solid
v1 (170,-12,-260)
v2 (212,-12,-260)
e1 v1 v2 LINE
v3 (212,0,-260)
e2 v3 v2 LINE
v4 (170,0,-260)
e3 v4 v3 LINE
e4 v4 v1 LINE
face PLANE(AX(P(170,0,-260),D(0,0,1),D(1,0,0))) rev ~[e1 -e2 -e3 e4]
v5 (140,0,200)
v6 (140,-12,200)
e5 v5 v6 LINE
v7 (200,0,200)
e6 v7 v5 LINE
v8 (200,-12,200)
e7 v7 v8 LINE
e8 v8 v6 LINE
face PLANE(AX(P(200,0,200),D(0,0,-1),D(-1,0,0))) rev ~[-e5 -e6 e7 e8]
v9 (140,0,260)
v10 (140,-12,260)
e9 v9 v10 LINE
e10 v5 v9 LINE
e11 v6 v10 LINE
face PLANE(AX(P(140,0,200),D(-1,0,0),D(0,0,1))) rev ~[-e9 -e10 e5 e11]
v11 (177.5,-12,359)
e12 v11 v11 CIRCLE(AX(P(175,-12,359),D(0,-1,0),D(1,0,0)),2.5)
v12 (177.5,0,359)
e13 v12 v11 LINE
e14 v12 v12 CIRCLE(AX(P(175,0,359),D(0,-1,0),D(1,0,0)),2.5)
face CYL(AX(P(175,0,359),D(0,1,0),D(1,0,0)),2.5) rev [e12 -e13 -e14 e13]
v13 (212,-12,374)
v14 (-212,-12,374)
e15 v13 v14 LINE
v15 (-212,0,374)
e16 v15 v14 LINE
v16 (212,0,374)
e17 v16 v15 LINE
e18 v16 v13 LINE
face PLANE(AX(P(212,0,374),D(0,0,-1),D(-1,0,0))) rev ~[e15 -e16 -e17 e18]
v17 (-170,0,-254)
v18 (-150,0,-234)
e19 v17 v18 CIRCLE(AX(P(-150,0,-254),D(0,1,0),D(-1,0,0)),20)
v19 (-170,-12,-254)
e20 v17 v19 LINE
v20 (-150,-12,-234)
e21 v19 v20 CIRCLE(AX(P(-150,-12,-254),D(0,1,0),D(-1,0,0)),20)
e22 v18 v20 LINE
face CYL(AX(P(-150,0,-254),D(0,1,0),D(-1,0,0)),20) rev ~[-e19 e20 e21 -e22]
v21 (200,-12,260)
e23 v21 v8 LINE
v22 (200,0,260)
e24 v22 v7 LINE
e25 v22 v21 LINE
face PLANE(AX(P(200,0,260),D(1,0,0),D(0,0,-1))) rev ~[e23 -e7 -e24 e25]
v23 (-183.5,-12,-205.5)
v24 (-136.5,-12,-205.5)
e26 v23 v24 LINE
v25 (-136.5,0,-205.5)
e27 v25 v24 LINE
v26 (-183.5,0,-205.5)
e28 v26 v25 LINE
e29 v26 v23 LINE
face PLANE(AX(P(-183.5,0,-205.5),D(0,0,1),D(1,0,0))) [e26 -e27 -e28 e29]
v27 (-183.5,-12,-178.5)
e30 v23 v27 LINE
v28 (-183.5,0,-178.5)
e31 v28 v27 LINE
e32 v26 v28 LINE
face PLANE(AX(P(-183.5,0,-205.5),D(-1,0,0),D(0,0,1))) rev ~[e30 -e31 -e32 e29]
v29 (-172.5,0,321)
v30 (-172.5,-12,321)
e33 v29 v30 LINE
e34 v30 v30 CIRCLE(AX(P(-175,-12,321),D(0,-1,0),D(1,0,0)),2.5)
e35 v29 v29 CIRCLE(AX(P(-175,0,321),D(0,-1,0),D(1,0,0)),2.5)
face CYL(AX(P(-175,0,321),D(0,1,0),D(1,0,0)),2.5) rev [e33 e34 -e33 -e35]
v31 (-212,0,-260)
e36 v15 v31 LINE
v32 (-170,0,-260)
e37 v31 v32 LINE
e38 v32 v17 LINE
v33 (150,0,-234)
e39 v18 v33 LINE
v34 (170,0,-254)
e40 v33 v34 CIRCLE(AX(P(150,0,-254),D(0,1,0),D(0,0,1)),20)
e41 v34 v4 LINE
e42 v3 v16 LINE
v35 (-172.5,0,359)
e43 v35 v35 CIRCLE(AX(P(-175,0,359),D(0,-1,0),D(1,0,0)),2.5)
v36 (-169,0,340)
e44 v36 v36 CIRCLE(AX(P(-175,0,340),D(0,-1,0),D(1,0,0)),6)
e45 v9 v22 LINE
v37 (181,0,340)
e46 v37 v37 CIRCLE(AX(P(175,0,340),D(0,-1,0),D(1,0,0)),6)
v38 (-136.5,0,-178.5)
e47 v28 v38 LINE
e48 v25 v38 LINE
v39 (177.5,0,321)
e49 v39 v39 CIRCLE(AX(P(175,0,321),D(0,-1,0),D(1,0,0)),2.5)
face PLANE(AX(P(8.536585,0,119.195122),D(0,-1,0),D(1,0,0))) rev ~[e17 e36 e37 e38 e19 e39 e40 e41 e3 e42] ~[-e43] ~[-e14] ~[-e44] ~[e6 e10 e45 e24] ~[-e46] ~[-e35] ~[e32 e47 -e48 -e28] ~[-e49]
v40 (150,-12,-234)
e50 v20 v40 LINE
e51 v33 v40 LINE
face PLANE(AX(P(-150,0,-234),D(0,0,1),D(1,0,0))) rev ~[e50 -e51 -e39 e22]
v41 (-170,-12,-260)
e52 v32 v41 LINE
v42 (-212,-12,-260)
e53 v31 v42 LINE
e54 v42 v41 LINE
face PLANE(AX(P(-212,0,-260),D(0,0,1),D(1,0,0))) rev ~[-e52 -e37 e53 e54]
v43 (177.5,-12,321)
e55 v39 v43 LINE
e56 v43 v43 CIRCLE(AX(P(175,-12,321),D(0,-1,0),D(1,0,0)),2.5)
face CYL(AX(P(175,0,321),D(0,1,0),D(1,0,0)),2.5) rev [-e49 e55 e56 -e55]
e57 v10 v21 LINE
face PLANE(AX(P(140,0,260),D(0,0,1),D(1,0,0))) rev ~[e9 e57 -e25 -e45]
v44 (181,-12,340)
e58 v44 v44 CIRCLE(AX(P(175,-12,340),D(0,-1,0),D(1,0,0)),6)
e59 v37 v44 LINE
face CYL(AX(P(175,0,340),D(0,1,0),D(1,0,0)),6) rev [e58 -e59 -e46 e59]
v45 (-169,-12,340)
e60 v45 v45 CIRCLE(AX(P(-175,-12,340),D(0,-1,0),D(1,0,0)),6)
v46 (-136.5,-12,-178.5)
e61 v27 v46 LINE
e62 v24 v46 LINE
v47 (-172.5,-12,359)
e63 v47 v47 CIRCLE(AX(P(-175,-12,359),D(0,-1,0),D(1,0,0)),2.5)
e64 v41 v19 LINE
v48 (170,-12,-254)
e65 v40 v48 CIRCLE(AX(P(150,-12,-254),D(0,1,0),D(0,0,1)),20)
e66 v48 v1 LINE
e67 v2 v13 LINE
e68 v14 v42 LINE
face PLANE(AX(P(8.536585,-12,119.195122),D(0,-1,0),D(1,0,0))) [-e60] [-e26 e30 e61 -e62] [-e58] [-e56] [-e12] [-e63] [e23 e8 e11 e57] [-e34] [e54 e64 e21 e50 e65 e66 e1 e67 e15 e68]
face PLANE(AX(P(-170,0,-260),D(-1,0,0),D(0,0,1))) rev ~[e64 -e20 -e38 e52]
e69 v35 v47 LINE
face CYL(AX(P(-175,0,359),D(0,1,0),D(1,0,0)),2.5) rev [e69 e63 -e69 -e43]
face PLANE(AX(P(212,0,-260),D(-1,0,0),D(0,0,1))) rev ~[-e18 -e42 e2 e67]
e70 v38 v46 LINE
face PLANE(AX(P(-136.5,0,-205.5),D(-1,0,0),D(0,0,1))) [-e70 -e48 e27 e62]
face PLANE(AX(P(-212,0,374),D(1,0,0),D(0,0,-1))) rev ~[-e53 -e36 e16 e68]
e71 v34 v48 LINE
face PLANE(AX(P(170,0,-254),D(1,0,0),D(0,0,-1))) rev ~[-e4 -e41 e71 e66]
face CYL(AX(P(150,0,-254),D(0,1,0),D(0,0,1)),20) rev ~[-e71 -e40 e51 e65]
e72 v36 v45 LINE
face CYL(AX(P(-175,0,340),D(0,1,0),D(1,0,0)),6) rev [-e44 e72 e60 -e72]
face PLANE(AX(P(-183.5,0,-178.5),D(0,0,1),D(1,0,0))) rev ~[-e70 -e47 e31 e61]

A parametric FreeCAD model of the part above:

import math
import FreeCAD as App
import Part
import Sketcher
Q = App.Units.Quantity


def add_polygon(sketch, points):
    """Adds a closed chain of lines whose ends are joined by coincident constraints."""
    first, n = sketch.GeometryCount, len(points)
    for a, b in zip(points, points[1:] + points[:1]):
        sketch.addGeometry(Part.LineSegment(App.Vector(*a, 0), App.Vector(*b, 0)), False)
    for i in range(n):
        sketch.addConstraint(Sketcher.Constraint("Coincident", first + i, 2, first + (i + 1) % n, 1))

doc = App.newDocument("Part")
params = doc.addObject("Spreadsheet::Sheet", "Params")
for row, (alias, value) in enumerate([
    ("sketch1_diameter", "5 mm"),
    ("sketch1_diameter2", "12 mm"),
    ("sketch1_radius", "20 mm"),
    ("sketch1_width", "424 mm"),
    ("sketch1_width2", "42 mm"),
    ("pad1_length", "12 mm"),
], start=1):
    params.set(f"A{row}", alias)
    params.set(f"B{row}", "=" + value)
    params.setAlias(f"B{row}", alias)

body = doc.addObject("PartDesign::Body", "Body")

# Sketch on XZ plane
sketch1 = body.newObject("Sketcher::SketchObject", "Sketch")
sketch1.AttachmentSupport = (doc.getObject("XZ_Plane"), [""])
sketch1.MapMode = "FlatFace"
sketch1.addGeometry(Part.LineSegment(App.Vector(212, -260, 0), App.Vector(212, 374, 0)), False)  # 0
sketch1.addGeometry(Part.LineSegment(App.Vector(212, 374, 0), App.Vector(-212, 374, 0)), False)  # 1
sketch1.addGeometry(Part.LineSegment(App.Vector(-212, 374, 0), App.Vector(-212, -260, 0)), False)  # 2
sketch1.addGeometry(Part.LineSegment(App.Vector(-212, -260, 0), App.Vector(-170, -260, 0)), False)  # 3
sketch1.addGeometry(Part.LineSegment(App.Vector(-170, -260, 0), App.Vector(-170, -254, 0)), False)  # 4
sketch1.addGeometry(Part.ArcOfCircle(Part.Circle(App.Vector(-150, -254, 0), App.Vector(0, 0, 1), 20), math.radians(90), math.radians(180)), False)  # 5
sketch1.addGeometry(Part.LineSegment(App.Vector(-150, -234, 0), App.Vector(150, -234, 0)), False)  # 6
sketch1.addGeometry(Part.ArcOfCircle(Part.Circle(App.Vector(150, -254, 0), App.Vector(0, 0, 1), 20), math.radians(0), math.radians(90)), False)  # 7
sketch1.addGeometry(Part.LineSegment(App.Vector(170, -254, 0), App.Vector(170, -260, 0)), False)  # 8
sketch1.addGeometry(Part.LineSegment(App.Vector(170, -260, 0), App.Vector(212, -260, 0)), False)  # 9
add_polygon(sketch1, [(-136.5, -205.5), (-183.5, -205.5), (-183.5, -178.5), (-136.5, -178.5)])  # lines 10-13
sketch1.addGeometry(Part.Circle(App.Vector(-175, 321, 0), App.Vector(0, 0, 1), 2.5), False)  # 14
sketch1.addGeometry(Part.Circle(App.Vector(-175, 340, 0), App.Vector(0, 0, 1), 6), False)  # 15
sketch1.addGeometry(Part.Circle(App.Vector(-175, 359, 0), App.Vector(0, 0, 1), 2.5), False)  # 16
add_polygon(sketch1, [(140, 260), (200, 260), (200, 200), (140, 200)])  # lines 17-20
sketch1.addGeometry(Part.Circle(App.Vector(175, 321, 0), App.Vector(0, 0, 1), 2.5), False)  # 21
sketch1.addGeometry(Part.Circle(App.Vector(175, 340, 0), App.Vector(0, 0, 1), 6), False)  # 22
sketch1.addGeometry(Part.Circle(App.Vector(175, 359, 0), App.Vector(0, 0, 1), 2.5), False)  # 23
sketch1.addConstraint(Sketcher.Constraint("Coincident", 0, 2, 1, 1))
sketch1.addConstraint(Sketcher.Constraint("Coincident", 1, 2, 2, 1))
sketch1.addConstraint(Sketcher.Constraint("Coincident", 2, 2, 3, 1))
sketch1.addConstraint(Sketcher.Constraint("Coincident", 3, 2, 4, 1))
sketch1.addConstraint(Sketcher.Constraint("Tangent", 4, 2, 5, 2))
sketch1.addConstraint(Sketcher.Constraint("Tangent", 5, 1, 6, 1))
sketch1.addConstraint(Sketcher.Constraint("Tangent", 6, 2, 7, 2))
sketch1.addConstraint(Sketcher.Constraint("Tangent", 7, 1, 8, 1))
sketch1.addConstraint(Sketcher.Constraint("Coincident", 8, 2, 9, 1))
sketch1.addConstraint(Sketcher.Constraint("Coincident", 9, 2, 0, 1))
sketch1.addConstraint(Sketcher.Constraint("Vertical", 0))
sketch1.addConstraint(Sketcher.Constraint("Horizontal", 1))
sketch1.addConstraint(Sketcher.Constraint("Vertical", 2))
sketch1.addConstraint(Sketcher.Constraint("Horizontal", 3))
sketch1.addConstraint(Sketcher.Constraint("Vertical", 4))
sketch1.addConstraint(Sketcher.Constraint("Horizontal", 6))
sketch1.addConstraint(Sketcher.Constraint("Vertical", 8))
sketch1.addConstraint(Sketcher.Constraint("Horizontal", 9))
sketch1.addConstraint(Sketcher.Constraint("Horizontal", 10))
sketch1.addConstraint(Sketcher.Constraint("Vertical", 11))
sketch1.addConstraint(Sketcher.Constraint("Horizontal", 12))
sketch1.addConstraint(Sketcher.Constraint("Vertical", 13))
sketch1.addConstraint(Sketcher.Constraint("Horizontal", 17))
sketch1.addConstraint(Sketcher.Constraint("Vertical", 18))
sketch1.addConstraint(Sketcher.Constraint("Horizontal", 19))
sketch1.addConstraint(Sketcher.Constraint("Vertical", 20))
sketch1.addConstraint(Sketcher.Constraint("Equal", 5, 7))
sketch1.addConstraint(Sketcher.Constraint("Equal", 14, 16))
sketch1.addConstraint(Sketcher.Constraint("Equal", 16, 21))
sketch1.addConstraint(Sketcher.Constraint("Equal", 15, 22))
sketch1.addConstraint(Sketcher.Constraint("Equal", 21, 23))
sketch1.addConstraint(Sketcher.Constraint("Symmetric", 14, 3, 21, 3, -2))
sketch1.addConstraint(Sketcher.Constraint("Symmetric", 15, 3, 22, 3, -2))
sketch1.addConstraint(Sketcher.Constraint("Symmetric", 16, 3, 23, 3, -2))
sketch1.addConstraint(Sketcher.Constraint("Symmetric", 3, 2, 8, 2, -2))
sketch1.addConstraint(Sketcher.Constraint("Vertical", 14, 3, 15, 3))
sketch1.addConstraint(Sketcher.Constraint("Vertical", 15, 3, 16, 3))
sketch1.addConstraint(Sketcher.Constraint("Equal", 3, 9))
sketch1.addConstraint(Sketcher.Constraint("Equal", 19, 18))
sketch1.addConstraint(Sketcher.Constraint("Diameter", 14, Q("5 mm")))
sketch1.addConstraint(Sketcher.Constraint("Diameter", 15, Q("12 mm")))
sketch1.addConstraint(Sketcher.Constraint("Radius", 5, Q("20 mm")))
sketch1.addConstraint(Sketcher.Constraint("DistanceX", 1, 2, 1, 1, Q("424 mm")))
sketch1.addConstraint(Sketcher.Constraint("DistanceX", 3, 1, 3, 2, Q("42 mm")))
sketch1.addConstraint(Sketcher.Constraint("DistanceX", 10, 2, 10, 1, Q("47 mm")))
sketch1.addConstraint(Sketcher.Constraint("DistanceX", 17, 1, 17, 2, Q("60 mm")))
sketch1.addConstraint(Sketcher.Constraint("DistanceY", 0, 1, 0, 2, Q("634 mm")))
sketch1.addConstraint(Sketcher.Constraint("DistanceY", 4, 1, 4, 2, Q("6 mm")))
sketch1.addConstraint(Sketcher.Constraint("DistanceY", 11, 1, 11, 2, Q("27 mm")))
sketch1.addConstraint(Sketcher.Constraint("DistanceY", 5, 3, -1, 1, Q("254 mm")))
sketch1.addConstraint(Sketcher.Constraint("DistanceX", 14, 3, -1, 1, Q("175 mm")))
sketch1.addConstraint(Sketcher.Constraint("DistanceY", -1, 1, 14, 3, Q("321 mm")))
sketch1.addConstraint(Sketcher.Constraint("DistanceY", -1, 1, 15, 3, Q("340 mm")))
sketch1.addConstraint(Sketcher.Constraint("DistanceY", -1, 1, 16, 3, Q("359 mm")))
sketch1.addConstraint(Sketcher.Constraint("DistanceX", -1, 1, 17, 2, Q("200 mm")))
sketch1.addConstraint(Sketcher.Constraint("DistanceY", -1, 1, 17, 2, Q("260 mm")))
sketch1.addConstraint(Sketcher.Constraint("DistanceX", 10, 2, -1, 1, Q("183.5 mm")))
sketch1.addConstraint(Sketcher.Constraint("DistanceY", 10, 2, -1, 1, Q("205.5 mm")))
sketch1.setExpression("Constraints[47]", "Params.sketch1_diameter")
sketch1.setExpression("Constraints[48]", "Params.sketch1_diameter2")
sketch1.setExpression("Constraints[49]", "Params.sketch1_radius")
sketch1.setExpression("Constraints[50]", "Params.sketch1_width")
sketch1.setExpression("Constraints[51]", "Params.sketch1_width2")
pad1 = body.newObject("PartDesign::Pad", "Pad")
pad1.Profile = sketch1
pad1.setExpression("Length", "Params.pad1_length")

doc.recompute()
